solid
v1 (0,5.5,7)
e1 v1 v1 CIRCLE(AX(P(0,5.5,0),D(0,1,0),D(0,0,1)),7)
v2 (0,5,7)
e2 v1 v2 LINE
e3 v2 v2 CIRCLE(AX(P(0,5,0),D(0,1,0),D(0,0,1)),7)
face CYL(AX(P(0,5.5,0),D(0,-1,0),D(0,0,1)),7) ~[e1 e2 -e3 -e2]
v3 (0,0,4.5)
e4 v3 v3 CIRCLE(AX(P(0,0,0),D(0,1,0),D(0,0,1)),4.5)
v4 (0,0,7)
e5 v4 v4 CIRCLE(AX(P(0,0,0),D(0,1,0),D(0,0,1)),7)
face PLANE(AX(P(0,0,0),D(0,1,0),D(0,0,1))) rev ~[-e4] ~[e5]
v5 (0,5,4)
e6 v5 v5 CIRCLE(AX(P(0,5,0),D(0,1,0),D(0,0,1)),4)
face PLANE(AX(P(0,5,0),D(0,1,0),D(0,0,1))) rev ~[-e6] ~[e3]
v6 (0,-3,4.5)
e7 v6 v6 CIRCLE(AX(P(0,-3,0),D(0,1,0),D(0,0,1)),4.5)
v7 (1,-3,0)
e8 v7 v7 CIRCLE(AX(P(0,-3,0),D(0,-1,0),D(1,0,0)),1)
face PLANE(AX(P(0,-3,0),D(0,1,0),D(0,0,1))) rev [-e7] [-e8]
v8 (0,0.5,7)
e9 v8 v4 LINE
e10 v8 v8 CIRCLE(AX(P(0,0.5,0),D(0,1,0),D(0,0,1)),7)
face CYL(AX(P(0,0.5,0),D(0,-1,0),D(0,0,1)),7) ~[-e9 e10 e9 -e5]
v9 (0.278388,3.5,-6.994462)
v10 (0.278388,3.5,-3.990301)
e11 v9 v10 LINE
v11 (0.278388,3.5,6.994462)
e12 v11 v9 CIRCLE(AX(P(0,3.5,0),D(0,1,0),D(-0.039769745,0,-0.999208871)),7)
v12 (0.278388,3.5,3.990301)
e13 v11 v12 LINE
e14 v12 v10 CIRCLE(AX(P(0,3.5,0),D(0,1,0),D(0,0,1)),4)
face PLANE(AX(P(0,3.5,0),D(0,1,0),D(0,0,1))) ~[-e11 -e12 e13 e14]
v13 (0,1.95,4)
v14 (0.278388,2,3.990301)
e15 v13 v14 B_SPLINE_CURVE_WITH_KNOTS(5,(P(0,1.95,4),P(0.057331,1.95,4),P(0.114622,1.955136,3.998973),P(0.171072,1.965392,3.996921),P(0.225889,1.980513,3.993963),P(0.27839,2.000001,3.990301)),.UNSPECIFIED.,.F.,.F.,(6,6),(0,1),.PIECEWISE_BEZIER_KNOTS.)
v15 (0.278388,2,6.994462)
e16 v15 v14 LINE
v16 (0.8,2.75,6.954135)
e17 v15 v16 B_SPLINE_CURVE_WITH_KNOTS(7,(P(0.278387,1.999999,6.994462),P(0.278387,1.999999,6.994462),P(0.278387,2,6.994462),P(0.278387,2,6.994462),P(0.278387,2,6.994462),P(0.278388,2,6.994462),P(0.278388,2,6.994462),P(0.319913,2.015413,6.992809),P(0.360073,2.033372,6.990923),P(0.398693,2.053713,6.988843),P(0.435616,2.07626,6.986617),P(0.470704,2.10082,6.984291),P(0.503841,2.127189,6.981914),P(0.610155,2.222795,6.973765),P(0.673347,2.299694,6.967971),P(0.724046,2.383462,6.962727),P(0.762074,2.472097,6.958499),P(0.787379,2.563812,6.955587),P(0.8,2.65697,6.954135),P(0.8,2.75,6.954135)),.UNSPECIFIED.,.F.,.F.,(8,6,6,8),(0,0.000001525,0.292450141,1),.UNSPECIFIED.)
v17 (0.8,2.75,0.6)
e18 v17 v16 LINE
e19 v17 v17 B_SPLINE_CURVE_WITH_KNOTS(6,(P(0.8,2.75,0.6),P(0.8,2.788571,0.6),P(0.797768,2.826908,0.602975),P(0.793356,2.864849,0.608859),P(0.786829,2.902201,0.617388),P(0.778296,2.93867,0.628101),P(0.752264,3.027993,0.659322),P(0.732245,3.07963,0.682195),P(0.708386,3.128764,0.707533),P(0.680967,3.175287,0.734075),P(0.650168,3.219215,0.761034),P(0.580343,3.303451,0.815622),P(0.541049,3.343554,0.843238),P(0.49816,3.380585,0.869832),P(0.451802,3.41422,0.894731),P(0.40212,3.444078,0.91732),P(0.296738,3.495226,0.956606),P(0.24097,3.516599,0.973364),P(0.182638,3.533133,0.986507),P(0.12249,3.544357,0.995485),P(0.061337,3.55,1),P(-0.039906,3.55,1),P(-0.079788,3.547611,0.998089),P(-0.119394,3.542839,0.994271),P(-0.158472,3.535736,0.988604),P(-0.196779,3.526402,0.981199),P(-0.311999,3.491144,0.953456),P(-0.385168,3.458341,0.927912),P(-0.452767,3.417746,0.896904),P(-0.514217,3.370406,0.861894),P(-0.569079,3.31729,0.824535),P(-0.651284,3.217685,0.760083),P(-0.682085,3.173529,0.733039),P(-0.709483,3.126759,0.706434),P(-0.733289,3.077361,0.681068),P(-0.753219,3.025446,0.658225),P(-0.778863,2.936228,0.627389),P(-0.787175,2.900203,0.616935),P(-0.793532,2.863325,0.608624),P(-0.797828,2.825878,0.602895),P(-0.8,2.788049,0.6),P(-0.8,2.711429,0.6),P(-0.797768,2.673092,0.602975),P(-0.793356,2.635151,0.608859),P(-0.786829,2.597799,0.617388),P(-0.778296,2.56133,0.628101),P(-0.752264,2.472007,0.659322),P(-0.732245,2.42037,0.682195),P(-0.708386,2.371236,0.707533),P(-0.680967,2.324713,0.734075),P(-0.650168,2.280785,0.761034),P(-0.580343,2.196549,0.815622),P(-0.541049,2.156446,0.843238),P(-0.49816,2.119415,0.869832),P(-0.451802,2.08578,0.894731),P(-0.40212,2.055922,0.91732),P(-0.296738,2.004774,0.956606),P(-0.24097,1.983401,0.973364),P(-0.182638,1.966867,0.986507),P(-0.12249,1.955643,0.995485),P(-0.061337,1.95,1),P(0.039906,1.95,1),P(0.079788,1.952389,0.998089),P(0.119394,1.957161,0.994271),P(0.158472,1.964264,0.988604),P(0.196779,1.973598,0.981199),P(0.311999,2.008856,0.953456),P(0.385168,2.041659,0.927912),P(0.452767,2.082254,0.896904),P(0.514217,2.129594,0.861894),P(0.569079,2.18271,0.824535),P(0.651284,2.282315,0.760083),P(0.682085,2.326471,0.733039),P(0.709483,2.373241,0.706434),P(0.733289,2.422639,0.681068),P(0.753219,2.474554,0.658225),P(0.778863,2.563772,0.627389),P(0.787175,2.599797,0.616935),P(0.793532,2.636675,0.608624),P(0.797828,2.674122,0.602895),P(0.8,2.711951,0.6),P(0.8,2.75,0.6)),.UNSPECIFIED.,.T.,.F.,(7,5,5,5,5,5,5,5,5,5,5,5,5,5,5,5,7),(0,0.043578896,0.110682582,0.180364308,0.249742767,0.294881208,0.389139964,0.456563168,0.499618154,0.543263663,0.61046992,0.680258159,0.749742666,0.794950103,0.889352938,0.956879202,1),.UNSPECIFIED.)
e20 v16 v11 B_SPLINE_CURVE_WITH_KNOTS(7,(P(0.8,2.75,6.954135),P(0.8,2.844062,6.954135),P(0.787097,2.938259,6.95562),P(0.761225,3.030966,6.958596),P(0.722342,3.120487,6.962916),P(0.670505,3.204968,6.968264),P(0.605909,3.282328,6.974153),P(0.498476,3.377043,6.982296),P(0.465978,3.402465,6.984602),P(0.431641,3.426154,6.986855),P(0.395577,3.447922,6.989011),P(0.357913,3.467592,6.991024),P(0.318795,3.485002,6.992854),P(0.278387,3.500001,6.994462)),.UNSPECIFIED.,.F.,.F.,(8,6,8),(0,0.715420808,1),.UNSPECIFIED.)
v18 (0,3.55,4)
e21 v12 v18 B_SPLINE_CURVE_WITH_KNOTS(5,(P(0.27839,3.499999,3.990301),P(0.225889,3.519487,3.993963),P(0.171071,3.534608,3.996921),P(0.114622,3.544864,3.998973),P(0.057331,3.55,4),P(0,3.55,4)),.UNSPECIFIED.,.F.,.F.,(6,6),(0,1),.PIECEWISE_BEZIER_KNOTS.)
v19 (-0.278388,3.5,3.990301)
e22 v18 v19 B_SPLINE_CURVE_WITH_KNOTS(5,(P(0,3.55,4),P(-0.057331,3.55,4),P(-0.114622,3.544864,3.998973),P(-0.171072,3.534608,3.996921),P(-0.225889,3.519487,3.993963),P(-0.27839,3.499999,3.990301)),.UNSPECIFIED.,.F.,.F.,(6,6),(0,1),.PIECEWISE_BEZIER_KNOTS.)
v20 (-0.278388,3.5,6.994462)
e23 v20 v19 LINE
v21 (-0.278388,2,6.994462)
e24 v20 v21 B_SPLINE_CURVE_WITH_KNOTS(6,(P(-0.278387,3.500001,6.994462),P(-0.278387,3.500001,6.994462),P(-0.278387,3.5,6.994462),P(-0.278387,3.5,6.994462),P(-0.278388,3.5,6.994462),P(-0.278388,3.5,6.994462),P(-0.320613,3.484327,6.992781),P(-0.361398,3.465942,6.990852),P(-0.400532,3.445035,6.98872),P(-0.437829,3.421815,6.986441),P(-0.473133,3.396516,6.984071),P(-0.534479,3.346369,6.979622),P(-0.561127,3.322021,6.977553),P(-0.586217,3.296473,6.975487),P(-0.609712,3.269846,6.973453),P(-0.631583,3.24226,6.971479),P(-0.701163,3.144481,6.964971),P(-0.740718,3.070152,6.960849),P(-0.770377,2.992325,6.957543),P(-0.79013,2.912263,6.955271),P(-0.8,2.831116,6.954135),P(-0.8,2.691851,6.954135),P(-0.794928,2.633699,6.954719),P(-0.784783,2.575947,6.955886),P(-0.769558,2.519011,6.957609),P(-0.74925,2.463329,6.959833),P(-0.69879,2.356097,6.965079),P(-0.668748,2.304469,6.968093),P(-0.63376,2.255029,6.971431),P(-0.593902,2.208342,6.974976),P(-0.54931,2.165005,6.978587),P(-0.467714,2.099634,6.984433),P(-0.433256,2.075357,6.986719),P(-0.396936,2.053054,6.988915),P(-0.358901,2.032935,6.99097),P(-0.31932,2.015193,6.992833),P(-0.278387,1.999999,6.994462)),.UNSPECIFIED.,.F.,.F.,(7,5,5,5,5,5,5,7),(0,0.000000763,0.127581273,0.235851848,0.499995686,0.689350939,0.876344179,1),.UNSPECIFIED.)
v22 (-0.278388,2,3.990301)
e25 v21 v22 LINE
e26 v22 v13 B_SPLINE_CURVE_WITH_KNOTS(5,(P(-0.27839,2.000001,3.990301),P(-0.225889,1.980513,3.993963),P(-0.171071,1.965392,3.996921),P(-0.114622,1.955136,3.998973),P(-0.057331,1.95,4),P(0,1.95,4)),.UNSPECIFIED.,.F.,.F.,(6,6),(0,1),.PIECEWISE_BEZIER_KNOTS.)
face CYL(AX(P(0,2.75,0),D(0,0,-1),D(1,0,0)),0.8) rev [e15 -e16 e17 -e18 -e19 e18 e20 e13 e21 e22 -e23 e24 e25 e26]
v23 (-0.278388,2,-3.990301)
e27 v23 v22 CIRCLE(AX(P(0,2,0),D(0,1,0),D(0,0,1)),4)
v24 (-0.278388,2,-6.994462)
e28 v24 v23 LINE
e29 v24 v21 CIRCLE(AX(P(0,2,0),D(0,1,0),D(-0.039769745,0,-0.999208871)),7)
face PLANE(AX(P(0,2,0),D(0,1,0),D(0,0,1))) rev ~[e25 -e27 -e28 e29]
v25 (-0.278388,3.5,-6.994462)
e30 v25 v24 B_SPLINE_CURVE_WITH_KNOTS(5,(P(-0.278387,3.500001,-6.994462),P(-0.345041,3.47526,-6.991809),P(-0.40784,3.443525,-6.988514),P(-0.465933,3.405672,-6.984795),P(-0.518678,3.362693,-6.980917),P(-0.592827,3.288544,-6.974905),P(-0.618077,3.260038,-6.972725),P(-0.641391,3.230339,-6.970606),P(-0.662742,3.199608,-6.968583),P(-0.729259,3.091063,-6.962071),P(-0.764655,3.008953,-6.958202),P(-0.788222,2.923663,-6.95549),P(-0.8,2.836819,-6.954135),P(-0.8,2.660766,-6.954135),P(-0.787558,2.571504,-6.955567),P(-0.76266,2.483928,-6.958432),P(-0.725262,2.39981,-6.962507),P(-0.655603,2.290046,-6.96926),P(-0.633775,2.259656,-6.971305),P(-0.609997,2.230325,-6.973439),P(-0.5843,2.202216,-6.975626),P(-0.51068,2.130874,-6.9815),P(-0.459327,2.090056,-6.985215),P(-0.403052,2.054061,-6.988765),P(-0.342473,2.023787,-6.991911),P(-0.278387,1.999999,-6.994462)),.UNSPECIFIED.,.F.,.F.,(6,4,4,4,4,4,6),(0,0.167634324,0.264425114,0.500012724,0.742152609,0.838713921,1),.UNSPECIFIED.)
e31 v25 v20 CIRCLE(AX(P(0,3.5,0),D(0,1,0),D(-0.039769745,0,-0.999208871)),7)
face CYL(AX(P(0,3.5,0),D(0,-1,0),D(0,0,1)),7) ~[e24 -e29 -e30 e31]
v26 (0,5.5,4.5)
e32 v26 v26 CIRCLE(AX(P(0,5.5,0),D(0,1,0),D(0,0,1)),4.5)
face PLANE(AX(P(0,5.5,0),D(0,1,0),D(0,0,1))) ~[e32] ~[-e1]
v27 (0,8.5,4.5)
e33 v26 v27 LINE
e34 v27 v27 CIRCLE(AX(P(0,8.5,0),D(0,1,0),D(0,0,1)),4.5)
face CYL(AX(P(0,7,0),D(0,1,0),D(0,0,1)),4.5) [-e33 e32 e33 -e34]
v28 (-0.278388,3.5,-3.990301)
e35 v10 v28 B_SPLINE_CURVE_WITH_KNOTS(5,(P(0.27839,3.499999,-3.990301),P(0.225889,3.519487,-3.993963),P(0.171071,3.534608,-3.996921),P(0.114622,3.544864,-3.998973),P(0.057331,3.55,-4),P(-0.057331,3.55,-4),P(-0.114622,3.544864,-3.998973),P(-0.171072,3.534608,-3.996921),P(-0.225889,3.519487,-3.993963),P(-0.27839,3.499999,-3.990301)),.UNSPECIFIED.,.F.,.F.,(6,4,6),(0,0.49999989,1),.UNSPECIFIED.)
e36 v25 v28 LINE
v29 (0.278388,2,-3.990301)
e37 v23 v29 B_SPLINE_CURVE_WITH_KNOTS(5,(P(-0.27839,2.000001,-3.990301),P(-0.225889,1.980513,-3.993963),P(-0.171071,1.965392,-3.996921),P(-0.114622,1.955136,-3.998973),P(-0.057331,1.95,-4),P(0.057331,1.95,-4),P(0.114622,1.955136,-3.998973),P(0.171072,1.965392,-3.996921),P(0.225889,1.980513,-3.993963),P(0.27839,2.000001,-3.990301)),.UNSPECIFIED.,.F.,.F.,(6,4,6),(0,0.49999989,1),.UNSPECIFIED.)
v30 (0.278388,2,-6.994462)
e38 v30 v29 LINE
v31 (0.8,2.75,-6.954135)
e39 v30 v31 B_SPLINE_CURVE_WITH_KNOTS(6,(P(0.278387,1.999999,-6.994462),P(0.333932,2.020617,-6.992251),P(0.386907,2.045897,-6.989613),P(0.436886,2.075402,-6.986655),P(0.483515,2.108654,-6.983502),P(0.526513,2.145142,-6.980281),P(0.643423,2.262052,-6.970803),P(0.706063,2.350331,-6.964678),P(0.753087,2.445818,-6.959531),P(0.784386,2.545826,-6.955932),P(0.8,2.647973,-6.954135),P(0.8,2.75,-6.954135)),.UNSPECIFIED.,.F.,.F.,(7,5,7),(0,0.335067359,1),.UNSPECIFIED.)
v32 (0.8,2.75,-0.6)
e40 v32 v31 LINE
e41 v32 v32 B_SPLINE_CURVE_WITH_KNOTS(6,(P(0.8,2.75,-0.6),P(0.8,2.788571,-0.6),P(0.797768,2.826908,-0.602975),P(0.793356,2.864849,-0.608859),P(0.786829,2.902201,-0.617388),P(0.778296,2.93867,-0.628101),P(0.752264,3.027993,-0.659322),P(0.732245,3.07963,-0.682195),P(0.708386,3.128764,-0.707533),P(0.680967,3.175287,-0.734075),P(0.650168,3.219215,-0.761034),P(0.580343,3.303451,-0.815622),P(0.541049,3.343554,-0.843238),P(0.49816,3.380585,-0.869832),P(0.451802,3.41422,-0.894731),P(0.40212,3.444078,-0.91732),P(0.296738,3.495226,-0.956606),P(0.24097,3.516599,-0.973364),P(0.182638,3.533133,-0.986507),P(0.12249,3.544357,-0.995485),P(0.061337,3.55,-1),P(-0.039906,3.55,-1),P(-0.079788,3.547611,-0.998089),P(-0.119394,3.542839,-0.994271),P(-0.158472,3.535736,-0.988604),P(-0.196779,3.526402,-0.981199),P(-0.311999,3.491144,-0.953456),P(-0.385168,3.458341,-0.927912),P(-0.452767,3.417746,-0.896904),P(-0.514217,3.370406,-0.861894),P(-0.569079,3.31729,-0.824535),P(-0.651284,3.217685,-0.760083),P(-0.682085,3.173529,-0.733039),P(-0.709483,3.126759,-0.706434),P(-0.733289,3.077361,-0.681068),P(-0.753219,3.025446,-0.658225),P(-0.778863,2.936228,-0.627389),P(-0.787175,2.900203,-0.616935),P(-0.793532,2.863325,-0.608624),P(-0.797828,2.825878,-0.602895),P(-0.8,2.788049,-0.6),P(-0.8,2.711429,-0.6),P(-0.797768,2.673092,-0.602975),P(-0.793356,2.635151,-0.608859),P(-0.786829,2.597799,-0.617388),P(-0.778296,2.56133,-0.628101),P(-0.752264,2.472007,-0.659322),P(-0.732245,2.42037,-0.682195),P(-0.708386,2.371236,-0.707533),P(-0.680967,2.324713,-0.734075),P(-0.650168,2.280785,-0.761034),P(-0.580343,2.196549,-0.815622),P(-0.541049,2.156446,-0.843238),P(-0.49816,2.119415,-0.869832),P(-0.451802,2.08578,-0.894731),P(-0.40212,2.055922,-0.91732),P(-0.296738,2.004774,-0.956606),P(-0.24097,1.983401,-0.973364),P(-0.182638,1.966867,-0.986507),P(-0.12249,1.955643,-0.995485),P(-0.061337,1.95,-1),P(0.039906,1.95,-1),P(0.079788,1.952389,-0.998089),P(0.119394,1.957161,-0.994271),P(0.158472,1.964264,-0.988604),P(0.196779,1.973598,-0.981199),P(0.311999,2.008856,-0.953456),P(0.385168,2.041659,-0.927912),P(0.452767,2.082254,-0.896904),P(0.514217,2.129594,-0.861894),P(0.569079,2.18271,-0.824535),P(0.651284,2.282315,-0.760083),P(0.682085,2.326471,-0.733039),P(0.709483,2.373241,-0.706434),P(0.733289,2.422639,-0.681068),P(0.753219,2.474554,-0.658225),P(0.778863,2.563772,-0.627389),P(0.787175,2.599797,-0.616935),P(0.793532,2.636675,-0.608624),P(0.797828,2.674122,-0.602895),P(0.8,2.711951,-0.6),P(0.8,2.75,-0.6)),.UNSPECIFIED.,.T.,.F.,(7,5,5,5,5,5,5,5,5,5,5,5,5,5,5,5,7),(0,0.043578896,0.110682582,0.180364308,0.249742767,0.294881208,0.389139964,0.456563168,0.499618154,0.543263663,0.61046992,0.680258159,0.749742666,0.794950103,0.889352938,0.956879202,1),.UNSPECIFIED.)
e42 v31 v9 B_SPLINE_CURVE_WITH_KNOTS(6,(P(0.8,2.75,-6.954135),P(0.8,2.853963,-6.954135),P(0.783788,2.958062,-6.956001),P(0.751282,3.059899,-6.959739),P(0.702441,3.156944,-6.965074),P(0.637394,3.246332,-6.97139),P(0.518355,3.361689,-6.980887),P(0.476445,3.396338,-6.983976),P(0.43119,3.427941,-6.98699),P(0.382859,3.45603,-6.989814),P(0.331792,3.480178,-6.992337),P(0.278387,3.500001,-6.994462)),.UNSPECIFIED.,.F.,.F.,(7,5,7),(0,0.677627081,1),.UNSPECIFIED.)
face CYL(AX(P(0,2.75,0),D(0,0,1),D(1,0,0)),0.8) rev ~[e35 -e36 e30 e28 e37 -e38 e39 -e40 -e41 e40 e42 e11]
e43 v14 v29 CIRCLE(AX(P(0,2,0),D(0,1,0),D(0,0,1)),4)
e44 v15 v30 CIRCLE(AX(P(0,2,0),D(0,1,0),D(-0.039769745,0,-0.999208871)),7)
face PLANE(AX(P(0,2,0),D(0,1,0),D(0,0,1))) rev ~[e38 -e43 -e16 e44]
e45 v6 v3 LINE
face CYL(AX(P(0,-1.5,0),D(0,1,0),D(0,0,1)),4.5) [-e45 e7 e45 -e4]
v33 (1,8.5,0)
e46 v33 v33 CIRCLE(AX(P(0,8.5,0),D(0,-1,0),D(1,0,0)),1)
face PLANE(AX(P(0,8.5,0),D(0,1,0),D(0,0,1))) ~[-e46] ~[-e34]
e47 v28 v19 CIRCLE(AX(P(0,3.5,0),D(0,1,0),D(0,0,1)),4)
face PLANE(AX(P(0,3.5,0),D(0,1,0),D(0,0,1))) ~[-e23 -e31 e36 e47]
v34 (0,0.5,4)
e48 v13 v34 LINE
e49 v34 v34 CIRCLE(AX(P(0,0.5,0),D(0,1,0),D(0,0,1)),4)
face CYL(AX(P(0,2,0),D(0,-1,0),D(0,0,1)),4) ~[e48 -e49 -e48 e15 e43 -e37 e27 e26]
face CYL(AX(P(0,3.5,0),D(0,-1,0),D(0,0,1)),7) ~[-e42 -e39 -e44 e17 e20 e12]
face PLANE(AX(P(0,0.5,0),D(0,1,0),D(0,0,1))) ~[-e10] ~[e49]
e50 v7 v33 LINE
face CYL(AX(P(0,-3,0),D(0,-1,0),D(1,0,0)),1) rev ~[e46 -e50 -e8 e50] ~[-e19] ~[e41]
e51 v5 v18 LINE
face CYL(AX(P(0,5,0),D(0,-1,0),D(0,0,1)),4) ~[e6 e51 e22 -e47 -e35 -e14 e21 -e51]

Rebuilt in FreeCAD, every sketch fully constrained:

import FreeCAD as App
import Part
import Sketcher


def add_polygon(sketch, points):
    """Adds a closed chain of lines whose ends are joined by coincident constraints."""
    first, n = sketch.GeometryCount, len(points)
    for a, b in zip(points, points[1:] + points[:1]):
        sketch.addGeometry(Part.LineSegment(App.Vector(*a, 0), App.Vector(*b, 0)), False)
    for i in range(n):
        sketch.addConstraint(Sketcher.Constraint("Coincident", first + i, 2, first + (i + 1) % n, 1))

doc = App.newDocument("Part")
body = doc.addObject("PartDesign::Body", "Body")

# Sketch on YZ plane
sketch1 = body.newObject("Sketcher::SketchObject", "Sketch")
sketch1.AttachmentSupport = (doc.getObject("YZ_Plane"), [""])
sketch1.MapMode = "FlatFace"
add_polygon(sketch1, [(8.5, 0), (8.5, 4.5), (5.5, 4.5), (5.5, 7), (5, 7), (5, 4), (3.5, 4), (3.5, 7), (2, 7), (2, 4), (0.5, 4), (0.5, 7), (0, 7), (0, 4.5), (-3, 4.5), (-3, 0)])  # lines 0-15
sketch1.addConstraint([
    Sketcher.Constraint("Vertical", 0),
    Sketcher.Constraint("Horizontal", 1),
    Sketcher.Constraint("Vertical", 2),
    Sketcher.Constraint("Horizontal", 3),
    Sketcher.Constraint("Vertical", 4),
    Sketcher.Constraint("Horizontal", 5),
    Sketcher.Constraint("Vertical", 6),
    Sketcher.Constraint("Horizontal", 7),
    Sketcher.Constraint("Vertical", 8),
    Sketcher.Constraint("Horizontal", 9),
    Sketcher.Constraint("Vertical", 10),
    Sketcher.Constraint("Horizontal", 11),
    Sketcher.Constraint("Vertical", 12),
    Sketcher.Constraint("Horizontal", 13),
    Sketcher.Constraint("Vertical", 14),
    Sketcher.Constraint("Horizontal", 15),
    Sketcher.Constraint("PointOnObject", 11, 2, -2),
    Sketcher.Constraint("PointOnObject", 14, 2, -1),
    Sketcher.Constraint("Horizontal", 3, 2, 6, 2),
    Sketcher.Constraint("Horizontal", 5, 2, 8, 2),
    Sketcher.Constraint("Horizontal", 7, 2, 10, 2),
    Sketcher.Constraint("Horizontal", 1, 2, 12, 2),
    Sketcher.Constraint("Equal", 5, 7),
    Sketcher.Constraint("Equal", 7, 9),
    Sketcher.Constraint("Equal", 3, 11),
    Sketcher.Constraint("Equal", 1, 13),
    Sketcher.Constraint("Equal", 13, 4),
    Sketcher.Constraint("DistanceX", 1, 2, 1, 1, 3.0),
    Sketcher.Constraint("DistanceX", 3, 2, 3, 1, 0.5),
    Sketcher.Constraint("DistanceX", 5, 2, 5, 1, 1.5),
    Sketcher.Constraint("DistanceY", 0, 1, 0, 2, 4.5),
    Sketcher.Constraint("DistanceY", 2, 1, 2, 2, 2.5),
])
revolution = body.newObject("PartDesign::Revolution", "Revolution")
revolution.Profile = sketch1
revolution.ReferenceAxis = (sketch1, ["H_Axis"])
revolution.Angle = 360

# Sketch on XY plane
sketch2 = body.newObject("Sketcher::SketchObject", "Sketch001")
sketch2.AttachmentSupport = (doc.getObject("XY_Plane"), [""])
sketch2.MapMode = "FlatFace"
sketch2.addGeometry(Part.Circle(App.Vector(0, 2.75, 0), App.Vector(0, 0, 1), 0.8), False)
sketch2.addConstraint([
    Sketcher.Constraint("PointOnObject", 0, 3, -2),
    Sketcher.Constraint("Diameter", 0, 1.6),
    Sketcher.Constraint("DistanceY", -1, 1, 0, 3, 2.75),
])
pocket1 = body.newObject("PartDesign::Pocket", "Pocket")
pocket1.Profile = sketch2
pocket1.Length = 25

# Sketch on XY plane
sketch3 = body.newObject("Sketcher::SketchObject", "Sketch002")
sketch3.AttachmentSupport = (doc.getObject("XY_Plane"), [""])
sketch3.MapMode = "FlatFace"
sketch3.addGeometry(Part.Circle(App.Vector(0, 2.75, 0), App.Vector(0, 0, 1), 0.8), False)
sketch3.addConstraint([
    Sketcher.Constraint("PointOnObject", 0, 3, -2),
    Sketcher.Constraint("Diameter", 0, 1.6),
    Sketcher.Constraint("DistanceY", -1, 1, 0, 3, 2.75),
])
pocket2 = body.newObject("PartDesign::Pocket", "Pocket001")
pocket2.Profile = sketch3
pocket2.Type = "ThroughAll"
pocket2.Midplane = True

# Sketch on XZ plane
sketch4 = body.newObject("Sketcher::SketchObject", "Sketch003")
sketch4.AttachmentSupport = (doc.getObject("XZ_Plane"), [""])
sketch4.MapMode = "FlatFace"
sketch4.AttachmentOffset = App.Placement(App.Vector(0, 0, 3), App.Rotation())
sketch4.addGeometry(Part.Circle(App.Vector(0, 0, 0), App.Vector(0, 0, 1), 1), False)
sketch4.addConstraint([
    Sketcher.Constraint("Coincident", 0, 3, -1, 1),
    Sketcher.Constraint("Diameter", 0, 2.0),
])
pocket3 = body.newObject("PartDesign::Pocket", "Pocket002")
pocket3.Profile = sketch4
pocket3.Length = 25

doc.recompute()
